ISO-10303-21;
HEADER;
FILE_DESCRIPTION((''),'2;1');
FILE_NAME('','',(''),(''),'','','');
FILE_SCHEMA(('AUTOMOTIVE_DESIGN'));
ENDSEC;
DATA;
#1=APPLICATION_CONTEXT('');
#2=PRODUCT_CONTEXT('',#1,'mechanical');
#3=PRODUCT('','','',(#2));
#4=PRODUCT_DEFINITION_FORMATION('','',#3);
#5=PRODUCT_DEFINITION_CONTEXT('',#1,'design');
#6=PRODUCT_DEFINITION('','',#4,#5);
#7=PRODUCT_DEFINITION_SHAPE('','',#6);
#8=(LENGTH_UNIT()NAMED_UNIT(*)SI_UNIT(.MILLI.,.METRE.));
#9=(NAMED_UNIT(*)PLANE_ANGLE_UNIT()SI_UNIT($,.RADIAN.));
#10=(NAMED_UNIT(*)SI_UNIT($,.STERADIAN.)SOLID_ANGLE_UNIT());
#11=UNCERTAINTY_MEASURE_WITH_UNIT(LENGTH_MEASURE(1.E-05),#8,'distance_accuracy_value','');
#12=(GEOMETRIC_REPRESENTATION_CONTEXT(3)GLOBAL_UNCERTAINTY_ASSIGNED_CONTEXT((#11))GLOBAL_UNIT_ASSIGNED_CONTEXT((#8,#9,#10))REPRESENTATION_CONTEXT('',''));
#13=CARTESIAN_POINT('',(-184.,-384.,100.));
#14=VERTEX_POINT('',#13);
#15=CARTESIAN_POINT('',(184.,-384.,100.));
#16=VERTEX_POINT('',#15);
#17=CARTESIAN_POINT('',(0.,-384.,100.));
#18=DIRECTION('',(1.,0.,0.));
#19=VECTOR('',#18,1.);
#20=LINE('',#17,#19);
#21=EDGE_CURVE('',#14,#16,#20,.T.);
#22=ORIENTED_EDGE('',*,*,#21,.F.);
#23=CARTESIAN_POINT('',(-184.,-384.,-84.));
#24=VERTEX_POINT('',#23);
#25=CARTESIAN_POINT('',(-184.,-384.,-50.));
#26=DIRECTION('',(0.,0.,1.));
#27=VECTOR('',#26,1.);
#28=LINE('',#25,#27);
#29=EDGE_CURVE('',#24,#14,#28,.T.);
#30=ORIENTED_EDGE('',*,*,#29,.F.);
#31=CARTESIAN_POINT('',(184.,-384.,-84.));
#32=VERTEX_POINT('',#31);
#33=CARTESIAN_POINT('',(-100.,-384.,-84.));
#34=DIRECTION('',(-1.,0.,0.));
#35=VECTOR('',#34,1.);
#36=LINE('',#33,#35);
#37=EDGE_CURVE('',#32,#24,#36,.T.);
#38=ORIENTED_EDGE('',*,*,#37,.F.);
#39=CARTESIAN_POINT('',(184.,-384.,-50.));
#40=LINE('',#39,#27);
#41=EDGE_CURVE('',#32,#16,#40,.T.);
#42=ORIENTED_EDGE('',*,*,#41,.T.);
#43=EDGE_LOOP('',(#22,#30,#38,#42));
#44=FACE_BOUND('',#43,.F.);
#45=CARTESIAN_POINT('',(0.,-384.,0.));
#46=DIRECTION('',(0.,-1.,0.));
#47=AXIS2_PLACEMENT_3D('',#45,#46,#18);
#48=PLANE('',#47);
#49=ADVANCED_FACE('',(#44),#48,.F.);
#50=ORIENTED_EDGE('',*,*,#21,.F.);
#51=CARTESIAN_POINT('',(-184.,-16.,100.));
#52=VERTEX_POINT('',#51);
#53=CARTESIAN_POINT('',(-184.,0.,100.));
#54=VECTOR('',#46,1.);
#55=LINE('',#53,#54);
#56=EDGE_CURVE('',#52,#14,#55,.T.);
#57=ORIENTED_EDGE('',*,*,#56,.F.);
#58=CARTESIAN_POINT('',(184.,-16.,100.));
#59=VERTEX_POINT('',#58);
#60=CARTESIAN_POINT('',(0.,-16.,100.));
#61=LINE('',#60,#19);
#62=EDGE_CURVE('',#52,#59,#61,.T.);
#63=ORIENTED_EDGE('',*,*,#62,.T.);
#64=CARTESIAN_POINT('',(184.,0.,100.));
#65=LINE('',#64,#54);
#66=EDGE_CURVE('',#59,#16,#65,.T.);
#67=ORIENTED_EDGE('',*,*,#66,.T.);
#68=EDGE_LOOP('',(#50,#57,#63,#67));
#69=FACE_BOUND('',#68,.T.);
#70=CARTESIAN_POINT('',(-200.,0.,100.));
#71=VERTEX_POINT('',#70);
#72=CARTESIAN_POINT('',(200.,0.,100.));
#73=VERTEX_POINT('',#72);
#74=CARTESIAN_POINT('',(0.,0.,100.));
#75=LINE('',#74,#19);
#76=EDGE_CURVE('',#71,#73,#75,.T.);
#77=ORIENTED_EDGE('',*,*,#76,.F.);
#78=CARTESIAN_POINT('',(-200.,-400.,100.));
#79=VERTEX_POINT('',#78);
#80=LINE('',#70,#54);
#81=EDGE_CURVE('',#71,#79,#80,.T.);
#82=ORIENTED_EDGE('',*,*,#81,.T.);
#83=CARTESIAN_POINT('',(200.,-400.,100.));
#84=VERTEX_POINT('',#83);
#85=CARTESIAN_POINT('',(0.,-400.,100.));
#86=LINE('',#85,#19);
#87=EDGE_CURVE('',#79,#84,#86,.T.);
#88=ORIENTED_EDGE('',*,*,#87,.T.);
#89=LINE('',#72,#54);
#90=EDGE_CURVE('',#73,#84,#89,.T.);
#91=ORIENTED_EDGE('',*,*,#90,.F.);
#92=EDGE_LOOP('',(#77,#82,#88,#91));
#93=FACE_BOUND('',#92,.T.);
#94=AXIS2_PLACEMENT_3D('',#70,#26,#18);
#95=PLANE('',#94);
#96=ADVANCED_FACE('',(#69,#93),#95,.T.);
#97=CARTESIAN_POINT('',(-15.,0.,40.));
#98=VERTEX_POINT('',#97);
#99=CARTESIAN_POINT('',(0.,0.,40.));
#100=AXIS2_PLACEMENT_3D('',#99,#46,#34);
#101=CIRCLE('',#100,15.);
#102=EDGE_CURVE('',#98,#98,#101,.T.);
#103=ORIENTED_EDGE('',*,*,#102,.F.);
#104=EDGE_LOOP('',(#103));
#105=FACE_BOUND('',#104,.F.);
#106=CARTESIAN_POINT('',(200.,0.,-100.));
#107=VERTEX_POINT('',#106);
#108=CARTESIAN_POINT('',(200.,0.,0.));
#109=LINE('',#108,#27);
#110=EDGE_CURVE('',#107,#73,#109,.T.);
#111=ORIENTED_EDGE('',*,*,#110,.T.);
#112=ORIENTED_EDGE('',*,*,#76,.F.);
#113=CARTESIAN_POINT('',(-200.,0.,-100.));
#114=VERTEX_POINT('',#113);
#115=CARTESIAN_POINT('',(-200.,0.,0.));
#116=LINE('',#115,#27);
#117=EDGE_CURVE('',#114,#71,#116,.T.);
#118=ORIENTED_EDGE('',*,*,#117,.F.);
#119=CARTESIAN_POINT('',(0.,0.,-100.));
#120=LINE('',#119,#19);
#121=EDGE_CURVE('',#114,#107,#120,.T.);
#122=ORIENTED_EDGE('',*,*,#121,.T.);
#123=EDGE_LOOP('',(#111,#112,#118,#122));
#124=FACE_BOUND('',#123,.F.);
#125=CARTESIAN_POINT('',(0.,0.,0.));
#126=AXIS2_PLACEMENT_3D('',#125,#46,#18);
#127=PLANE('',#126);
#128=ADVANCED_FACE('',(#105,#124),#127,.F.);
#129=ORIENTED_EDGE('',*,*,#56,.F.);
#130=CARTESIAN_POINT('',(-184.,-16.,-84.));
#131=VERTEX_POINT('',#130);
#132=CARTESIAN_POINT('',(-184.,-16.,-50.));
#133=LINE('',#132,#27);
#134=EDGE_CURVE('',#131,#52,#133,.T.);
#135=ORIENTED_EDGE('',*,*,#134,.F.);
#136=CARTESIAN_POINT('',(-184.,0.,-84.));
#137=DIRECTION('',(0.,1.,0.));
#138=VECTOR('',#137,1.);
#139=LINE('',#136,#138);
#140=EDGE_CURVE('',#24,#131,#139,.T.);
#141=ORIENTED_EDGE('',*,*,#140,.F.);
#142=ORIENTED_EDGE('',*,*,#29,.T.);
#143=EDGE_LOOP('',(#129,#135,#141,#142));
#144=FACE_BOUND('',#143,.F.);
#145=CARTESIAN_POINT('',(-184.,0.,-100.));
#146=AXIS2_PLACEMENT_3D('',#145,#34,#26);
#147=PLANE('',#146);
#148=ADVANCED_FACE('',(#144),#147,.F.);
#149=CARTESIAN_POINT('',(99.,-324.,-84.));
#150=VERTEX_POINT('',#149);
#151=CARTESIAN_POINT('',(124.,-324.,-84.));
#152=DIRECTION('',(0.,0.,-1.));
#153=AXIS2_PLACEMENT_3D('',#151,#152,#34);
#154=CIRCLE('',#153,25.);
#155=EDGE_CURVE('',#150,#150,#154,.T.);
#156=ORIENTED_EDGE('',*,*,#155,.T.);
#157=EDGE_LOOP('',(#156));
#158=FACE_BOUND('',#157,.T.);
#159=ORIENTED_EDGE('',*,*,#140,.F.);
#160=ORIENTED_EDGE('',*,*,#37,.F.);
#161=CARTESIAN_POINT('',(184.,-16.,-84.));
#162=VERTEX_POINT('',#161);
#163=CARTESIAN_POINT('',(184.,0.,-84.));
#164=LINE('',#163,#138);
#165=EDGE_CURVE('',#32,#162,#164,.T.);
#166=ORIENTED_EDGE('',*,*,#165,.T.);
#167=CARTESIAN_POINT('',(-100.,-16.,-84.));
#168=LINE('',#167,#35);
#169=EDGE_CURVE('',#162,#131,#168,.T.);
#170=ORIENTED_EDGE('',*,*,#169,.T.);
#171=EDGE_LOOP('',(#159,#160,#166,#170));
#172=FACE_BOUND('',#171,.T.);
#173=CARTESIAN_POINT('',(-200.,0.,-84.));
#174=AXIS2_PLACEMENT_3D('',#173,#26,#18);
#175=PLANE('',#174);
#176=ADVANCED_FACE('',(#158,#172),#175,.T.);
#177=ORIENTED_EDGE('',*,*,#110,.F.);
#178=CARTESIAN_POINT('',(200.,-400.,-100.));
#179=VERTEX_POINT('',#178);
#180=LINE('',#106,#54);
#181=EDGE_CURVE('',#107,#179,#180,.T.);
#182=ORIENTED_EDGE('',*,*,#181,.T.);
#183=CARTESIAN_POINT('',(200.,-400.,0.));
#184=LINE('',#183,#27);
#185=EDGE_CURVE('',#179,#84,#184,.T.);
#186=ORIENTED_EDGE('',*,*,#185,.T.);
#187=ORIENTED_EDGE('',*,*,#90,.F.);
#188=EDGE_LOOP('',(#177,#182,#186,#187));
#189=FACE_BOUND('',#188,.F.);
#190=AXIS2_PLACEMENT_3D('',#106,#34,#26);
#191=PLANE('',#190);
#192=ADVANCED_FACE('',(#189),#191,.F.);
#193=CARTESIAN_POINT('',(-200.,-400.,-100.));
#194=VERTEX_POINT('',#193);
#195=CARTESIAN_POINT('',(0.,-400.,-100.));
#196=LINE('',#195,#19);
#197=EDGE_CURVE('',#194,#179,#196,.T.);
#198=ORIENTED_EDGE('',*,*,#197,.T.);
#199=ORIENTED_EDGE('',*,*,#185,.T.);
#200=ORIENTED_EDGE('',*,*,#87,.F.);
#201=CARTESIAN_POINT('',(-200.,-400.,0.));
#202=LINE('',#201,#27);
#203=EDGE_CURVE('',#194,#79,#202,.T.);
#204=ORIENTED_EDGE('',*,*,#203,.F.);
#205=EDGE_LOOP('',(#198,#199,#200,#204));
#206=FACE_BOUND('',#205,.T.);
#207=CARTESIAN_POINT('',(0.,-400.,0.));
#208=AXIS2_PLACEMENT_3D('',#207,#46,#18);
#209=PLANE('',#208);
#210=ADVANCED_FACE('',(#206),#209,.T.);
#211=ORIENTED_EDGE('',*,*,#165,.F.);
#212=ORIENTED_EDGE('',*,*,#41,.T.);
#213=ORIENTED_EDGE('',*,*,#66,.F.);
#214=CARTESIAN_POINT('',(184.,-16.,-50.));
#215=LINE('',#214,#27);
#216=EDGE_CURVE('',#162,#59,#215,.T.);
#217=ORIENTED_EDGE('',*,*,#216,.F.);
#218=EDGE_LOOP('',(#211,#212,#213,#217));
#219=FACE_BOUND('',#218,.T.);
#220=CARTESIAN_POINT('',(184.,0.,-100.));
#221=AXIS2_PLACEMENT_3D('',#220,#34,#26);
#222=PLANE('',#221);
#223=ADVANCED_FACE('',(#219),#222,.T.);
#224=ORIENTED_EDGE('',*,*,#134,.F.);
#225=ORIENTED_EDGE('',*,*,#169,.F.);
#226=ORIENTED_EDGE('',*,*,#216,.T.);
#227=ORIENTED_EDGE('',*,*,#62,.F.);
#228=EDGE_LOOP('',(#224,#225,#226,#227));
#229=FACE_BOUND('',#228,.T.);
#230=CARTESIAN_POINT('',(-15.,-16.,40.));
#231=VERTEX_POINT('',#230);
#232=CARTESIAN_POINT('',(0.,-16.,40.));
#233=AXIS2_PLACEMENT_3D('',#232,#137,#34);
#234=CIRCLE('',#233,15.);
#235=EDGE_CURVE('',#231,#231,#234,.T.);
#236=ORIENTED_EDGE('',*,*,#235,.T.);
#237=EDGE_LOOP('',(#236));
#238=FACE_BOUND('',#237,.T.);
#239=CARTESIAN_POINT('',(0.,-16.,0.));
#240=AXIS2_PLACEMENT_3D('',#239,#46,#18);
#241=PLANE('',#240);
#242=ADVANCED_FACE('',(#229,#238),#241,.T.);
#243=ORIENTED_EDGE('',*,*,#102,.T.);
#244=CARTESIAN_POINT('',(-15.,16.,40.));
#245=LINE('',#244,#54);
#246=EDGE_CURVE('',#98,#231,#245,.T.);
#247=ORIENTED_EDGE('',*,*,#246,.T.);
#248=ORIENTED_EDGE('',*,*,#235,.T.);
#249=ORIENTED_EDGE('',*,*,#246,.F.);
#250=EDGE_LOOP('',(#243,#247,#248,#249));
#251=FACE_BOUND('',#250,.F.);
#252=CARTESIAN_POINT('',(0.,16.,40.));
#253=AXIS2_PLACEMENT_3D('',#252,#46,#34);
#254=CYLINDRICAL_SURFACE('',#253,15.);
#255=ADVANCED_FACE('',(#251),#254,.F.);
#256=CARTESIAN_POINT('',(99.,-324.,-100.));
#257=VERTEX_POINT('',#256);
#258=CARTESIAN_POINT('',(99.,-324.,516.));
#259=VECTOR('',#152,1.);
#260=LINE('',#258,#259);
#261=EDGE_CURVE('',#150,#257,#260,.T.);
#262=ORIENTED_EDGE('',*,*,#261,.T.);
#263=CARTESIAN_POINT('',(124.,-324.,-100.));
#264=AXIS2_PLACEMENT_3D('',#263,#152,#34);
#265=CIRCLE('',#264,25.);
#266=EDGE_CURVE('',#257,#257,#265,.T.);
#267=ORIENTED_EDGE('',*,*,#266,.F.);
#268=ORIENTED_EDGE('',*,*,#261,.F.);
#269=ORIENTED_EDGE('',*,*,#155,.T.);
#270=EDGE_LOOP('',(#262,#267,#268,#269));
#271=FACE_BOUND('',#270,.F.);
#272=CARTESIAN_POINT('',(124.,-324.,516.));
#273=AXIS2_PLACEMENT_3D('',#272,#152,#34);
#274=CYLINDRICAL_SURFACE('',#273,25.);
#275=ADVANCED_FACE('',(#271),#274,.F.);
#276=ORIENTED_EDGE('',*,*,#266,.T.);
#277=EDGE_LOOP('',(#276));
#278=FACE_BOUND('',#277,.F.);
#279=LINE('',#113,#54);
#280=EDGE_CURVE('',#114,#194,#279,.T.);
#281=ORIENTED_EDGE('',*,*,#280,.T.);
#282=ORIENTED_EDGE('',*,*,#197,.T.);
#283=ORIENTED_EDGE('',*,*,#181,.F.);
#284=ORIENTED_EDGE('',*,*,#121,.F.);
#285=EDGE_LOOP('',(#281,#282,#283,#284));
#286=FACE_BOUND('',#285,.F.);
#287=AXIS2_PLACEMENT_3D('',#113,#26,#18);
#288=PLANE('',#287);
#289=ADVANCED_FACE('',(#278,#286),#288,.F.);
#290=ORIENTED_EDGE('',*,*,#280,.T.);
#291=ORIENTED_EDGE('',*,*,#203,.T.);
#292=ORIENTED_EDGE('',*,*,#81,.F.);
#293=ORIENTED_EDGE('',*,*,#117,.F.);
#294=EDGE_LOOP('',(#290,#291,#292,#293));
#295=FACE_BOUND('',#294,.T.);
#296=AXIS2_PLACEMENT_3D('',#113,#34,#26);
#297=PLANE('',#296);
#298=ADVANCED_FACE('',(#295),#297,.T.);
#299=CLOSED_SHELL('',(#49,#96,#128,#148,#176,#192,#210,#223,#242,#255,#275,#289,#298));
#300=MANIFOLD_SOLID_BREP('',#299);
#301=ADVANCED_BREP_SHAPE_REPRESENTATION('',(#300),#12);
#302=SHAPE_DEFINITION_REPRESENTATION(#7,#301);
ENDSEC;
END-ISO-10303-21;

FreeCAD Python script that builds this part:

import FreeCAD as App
import Part
import Sketcher
Q = App.Units.Quantity


def faces_at(feature, points):
    """Names of the faces that lie closest to the given points."""
    faces = feature.Shape.Faces
    near = lambda p: min(range(len(faces)), key=lambda i: faces[i].distToShape(Part.Vertex(*p))[0])
    return sorted({f"Face{near(p) + 1}" for p in points})


def add_polygon(sketch, points):
    """Adds a closed chain of lines whose ends are joined by coincident constraints."""
    first, n = sketch.GeometryCount, len(points)
    for a, b in zip(points, points[1:] + points[:1]):
        sketch.addGeometry(Part.LineSegment(App.Vector(*a, 0), App.Vector(*b, 0)), False)
    for i in range(n):
        sketch.addConstraint(Sketcher.Constraint("Coincident", first + i, 2, first + (i + 1) % n, 1))

doc = App.newDocument("Part")
body = doc.addObject("PartDesign::Body", "Body")

# Sketch on XZ plane
sketch1 = doc.addObject("Sketcher::SketchObject", "Sketch")
body.addObject(sketch1)
sketch1.AttachmentSupport = (doc.XZ_Plane, [""])
sketch1.MapMode = "FlatFace"
add_polygon(sketch1, [(-200, 100), (-200, -100), (200, -100), (200, 100)])  # lines 0-3
sketch1.addConstraint(Sketcher.Constraint("Vertical", 0))
sketch1.addConstraint(Sketcher.Constraint("Horizontal", 1))
sketch1.addConstraint(Sketcher.Constraint("Vertical", 2))
sketch1.addConstraint(Sketcher.Constraint("Horizontal", 3))
sketch1.addConstraint(Sketcher.Constraint("Symmetric", 0, 2, 2, 2, -1, 1))
sketch1.addConstraint(Sketcher.Constraint("DistanceX", 1, 1, 1, 2, Q("400 mm")))
sketch1.addConstraint(Sketcher.Constraint("DistanceY", 0, 2, 0, 1, Q("200 mm")))
pad1 = doc.addObject("PartDesign::Pad", "Pad")
body.addObject(pad1)
pad1.Profile = sketch1
pad1.Length = 400
doc.recompute()

thickness = doc.addObject("PartDesign::Thickness", "Thickness")
body.addObject(thickness)
thickness.Base = (pad1, faces_at(pad1, [(0, -200, 100)]))
thickness.Value = 16
thickness.Reversed = True
thickness.Join = "Arc"

# Sketch on XZ plane
sketch2 = doc.addObject("Sketcher::SketchObject", "Sketch001")
body.addObject(sketch2)
sketch2.AttachmentSupport = (doc.XZ_Plane, [""])
sketch2.MapMode = "FlatFace"
sketch2.addGeometry(Part.Circle(App.Vector(0, 40, 0), App.Vector(0, 0, 1), 15), False)
sketch2.addConstraint(Sketcher.Constraint("PointOnObject", 0, 3, -2))
sketch2.addConstraint(Sketcher.Constraint("Diameter", 0, Q("30 mm")))
sketch2.addConstraint(Sketcher.Constraint("DistanceY", -1, 1, 0, 3, Q("40 mm")))
doc.recompute()
hole = doc.addObject("PartDesign::Hole", "Hole")
body.addObject(hole)
hole.Profile = sketch2
hole.ThreadType = "None"
hole.Diameter = 30
hole.DepthType = "Dimension"
hole.Depth = 16
hole.DrillPoint = "Angled"
hole.DrillPointAngle = 118
hole.Reversed = True

# Sketch on XY plane
sketch3 = doc.addObject("Sketcher::SketchObject", "Sketch002")
body.addObject(sketch3)
sketch3.AttachmentSupport = (doc.XY_Plane, [""])
sketch3.MapMode = "FlatFace"
sketch3.AttachmentOffset = App.Placement(App.Vector(0, 0, -84), App.Rotation())
sketch3.addGeometry(Part.Circle(App.Vector(124, -324, 0), App.Vector(0, 0, 1), 25), False)
sketch3.addConstraint(Sketcher.Constraint("Diameter", 0, Q("50 mm")))
sketch3.addConstraint(Sketcher.Constraint("DistanceX", -1, 1, 0, 3, Q("124 mm")))
sketch3.addConstraint(Sketcher.Constraint("DistanceY", 0, 3, -1, 1, Q("324 mm")))
doc.recompute()
hole2 = doc.addObject("PartDesign::Hole", "Hole001")
body.addObject(hole2)
hole2.Profile = sketch3
hole2.ThreadType = "None"
hole2.Diameter = 50
hole2.DepthType = "ThroughAll"

doc.recompute()
